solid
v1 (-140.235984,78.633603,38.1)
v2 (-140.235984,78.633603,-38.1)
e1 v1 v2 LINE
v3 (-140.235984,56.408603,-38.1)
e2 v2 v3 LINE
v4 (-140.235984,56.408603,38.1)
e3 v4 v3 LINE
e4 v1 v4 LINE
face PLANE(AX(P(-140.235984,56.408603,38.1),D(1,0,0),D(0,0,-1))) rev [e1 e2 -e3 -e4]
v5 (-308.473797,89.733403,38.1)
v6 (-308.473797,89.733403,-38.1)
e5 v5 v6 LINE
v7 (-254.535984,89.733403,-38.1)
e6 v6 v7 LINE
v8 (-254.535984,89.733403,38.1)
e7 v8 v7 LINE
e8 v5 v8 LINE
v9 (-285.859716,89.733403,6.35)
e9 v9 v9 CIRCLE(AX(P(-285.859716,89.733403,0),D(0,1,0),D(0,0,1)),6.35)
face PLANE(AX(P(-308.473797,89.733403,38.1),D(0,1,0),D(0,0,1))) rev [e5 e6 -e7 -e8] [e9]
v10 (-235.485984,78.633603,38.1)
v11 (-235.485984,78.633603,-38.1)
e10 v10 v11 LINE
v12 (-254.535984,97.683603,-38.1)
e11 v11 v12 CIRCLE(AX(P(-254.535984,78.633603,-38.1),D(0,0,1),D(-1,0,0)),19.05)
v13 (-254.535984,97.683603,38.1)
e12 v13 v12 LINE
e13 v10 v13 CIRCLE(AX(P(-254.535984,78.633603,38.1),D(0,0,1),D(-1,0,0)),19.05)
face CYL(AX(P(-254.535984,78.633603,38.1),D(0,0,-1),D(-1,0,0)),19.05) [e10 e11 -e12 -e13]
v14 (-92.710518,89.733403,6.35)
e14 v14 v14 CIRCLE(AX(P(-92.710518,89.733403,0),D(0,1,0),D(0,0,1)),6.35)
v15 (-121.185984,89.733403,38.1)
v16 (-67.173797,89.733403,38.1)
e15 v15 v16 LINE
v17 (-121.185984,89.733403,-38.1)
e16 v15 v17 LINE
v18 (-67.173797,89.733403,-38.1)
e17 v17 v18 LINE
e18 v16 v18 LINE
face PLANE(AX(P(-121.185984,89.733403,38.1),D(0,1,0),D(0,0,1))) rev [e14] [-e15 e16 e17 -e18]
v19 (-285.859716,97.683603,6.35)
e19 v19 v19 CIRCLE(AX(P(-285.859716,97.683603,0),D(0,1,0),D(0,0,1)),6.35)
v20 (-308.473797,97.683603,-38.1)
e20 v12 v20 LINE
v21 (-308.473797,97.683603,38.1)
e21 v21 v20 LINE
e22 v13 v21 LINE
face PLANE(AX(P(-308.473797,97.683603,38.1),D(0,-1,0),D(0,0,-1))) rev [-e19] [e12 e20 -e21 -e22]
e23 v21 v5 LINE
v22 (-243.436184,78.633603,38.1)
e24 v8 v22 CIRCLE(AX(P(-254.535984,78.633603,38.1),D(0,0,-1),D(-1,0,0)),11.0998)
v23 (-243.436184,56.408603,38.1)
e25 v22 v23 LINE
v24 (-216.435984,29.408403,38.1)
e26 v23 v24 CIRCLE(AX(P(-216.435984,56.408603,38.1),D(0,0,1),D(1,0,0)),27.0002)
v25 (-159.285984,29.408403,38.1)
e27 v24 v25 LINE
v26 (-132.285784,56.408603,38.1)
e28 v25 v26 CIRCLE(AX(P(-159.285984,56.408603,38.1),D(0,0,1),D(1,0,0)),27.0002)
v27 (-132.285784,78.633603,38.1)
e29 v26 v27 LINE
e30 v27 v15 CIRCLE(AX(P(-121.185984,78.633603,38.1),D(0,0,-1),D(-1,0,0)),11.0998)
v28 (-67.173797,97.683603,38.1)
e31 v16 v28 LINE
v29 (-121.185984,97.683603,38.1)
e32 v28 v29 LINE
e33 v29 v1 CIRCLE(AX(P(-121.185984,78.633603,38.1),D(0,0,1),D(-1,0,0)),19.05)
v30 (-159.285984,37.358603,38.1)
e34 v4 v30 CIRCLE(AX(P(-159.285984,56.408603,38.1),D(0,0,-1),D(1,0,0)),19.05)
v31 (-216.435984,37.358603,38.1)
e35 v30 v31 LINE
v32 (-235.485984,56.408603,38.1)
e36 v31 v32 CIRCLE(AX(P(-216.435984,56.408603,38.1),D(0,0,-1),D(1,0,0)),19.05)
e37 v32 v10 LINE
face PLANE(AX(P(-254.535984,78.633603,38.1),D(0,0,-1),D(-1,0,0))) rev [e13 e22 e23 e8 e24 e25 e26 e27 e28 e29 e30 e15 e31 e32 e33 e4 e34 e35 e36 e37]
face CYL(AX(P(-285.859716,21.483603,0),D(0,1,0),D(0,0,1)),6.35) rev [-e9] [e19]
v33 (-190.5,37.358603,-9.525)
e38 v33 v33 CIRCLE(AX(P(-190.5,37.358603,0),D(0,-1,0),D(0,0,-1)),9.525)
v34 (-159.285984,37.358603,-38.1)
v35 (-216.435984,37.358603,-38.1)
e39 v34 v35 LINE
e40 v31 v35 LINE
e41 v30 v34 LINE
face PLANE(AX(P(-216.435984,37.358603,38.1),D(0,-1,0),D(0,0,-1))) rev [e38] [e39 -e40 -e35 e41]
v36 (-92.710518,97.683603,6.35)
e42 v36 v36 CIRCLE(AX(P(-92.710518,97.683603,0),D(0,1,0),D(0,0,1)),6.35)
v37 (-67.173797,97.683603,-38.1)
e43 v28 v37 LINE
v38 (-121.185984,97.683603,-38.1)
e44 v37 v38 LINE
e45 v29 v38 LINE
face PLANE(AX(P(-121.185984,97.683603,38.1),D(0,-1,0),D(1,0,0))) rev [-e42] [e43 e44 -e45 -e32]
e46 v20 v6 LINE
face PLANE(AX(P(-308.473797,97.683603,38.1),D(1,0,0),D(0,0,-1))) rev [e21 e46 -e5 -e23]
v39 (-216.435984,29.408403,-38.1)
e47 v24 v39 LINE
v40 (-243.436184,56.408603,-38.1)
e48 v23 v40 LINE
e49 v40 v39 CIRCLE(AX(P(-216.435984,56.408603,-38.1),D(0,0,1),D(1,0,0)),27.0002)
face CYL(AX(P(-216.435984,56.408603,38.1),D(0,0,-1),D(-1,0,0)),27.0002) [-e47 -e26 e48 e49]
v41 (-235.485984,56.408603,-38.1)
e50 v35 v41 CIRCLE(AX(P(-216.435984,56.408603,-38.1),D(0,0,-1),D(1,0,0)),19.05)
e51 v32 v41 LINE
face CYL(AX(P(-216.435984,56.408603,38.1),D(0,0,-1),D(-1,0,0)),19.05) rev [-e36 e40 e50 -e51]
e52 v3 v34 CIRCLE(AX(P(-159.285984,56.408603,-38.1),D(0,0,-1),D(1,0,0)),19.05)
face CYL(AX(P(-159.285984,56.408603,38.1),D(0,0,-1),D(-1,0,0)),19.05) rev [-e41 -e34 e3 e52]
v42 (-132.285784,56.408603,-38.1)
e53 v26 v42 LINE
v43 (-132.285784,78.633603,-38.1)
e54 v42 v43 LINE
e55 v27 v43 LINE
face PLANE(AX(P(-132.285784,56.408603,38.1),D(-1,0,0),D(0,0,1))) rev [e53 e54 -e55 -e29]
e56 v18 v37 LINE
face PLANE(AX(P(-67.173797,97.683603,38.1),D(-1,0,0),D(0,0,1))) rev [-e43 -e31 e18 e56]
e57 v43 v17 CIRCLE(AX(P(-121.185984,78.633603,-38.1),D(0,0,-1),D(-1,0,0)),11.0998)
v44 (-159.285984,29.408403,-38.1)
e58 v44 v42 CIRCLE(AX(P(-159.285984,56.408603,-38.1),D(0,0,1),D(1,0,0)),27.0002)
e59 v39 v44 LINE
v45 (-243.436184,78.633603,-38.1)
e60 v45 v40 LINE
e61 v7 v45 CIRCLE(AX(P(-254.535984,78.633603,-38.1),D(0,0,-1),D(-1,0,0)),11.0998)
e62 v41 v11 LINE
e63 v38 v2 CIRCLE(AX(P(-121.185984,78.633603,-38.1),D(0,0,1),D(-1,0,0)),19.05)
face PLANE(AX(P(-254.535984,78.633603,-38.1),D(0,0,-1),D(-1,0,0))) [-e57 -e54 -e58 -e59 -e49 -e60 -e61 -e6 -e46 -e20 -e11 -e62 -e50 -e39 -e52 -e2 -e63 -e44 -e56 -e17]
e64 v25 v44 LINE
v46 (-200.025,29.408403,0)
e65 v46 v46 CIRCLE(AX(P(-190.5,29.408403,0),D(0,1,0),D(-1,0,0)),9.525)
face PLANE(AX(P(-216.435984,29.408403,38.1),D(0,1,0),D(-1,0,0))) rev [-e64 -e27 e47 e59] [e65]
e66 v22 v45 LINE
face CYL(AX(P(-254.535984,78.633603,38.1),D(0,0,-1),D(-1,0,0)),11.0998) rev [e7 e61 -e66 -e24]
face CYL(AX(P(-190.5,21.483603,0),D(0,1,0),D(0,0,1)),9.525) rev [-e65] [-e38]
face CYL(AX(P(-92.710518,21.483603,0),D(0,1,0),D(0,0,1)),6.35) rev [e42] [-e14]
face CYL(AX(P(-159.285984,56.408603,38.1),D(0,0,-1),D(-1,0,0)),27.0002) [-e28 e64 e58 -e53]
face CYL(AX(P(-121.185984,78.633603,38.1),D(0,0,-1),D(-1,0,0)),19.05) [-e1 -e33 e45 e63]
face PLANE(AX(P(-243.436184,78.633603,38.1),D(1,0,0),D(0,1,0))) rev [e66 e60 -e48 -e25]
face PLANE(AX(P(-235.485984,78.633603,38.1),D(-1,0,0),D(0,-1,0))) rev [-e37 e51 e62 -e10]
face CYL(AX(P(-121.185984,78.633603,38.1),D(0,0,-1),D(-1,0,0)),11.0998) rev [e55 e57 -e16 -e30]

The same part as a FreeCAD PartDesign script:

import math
import FreeCAD as App
import Part
import Sketcher

V = App.Vector
Q = App.Units.Quantity

doc = App.newDocument("Part")
body = doc.addObject("PartDesign::Body", "Body")

# Sketch on XY plane
sketch1 = body.newObject("Sketcher::SketchObject", "Sketch")
sketch1.AttachmentSupport = (doc.getObject("XY_Plane"), [""])
sketch1.MapMode = "FlatFace"
sketch1.addGeometry(Part.LineSegment(V(-255, 98, 0), V(-308, 98, 0)), False)
sketch1.addGeometry(Part.LineSegment(V(-308, 98, 0), V(-308, 90, 0)), False)
sketch1.addGeometry(Part.LineSegment(V(-308, 90, 0), V(-255, 90, 0)), False)
sketch1.addGeometry(Part.ArcOfCircle(Part.Circle(V(-255, 79, 0), V(0, 0, 1), 11), math.radians(0), math.radians(90)), False)
sketch1.addGeometry(Part.LineSegment(V(-243, 79, 0), V(-243, 56, 0)), False)
sketch1.addGeometry(Part.ArcOfCircle(Part.Circle(V(-216, 56, 0), V(0, 0, 1), 27), math.radians(-180), math.radians(-90)), False)
sketch1.addGeometry(Part.LineSegment(V(-216, 29, 0), V(-159, 29, 0)), False)
sketch1.addGeometry(Part.ArcOfCircle(Part.Circle(V(-159, 56, 0), V(0, 0, 1), 27), math.radians(-90), math.radians(0)), False)
sketch1.addGeometry(Part.LineSegment(V(-132, 56, 0), V(-132, 79, 0)), False)
sketch1.addGeometry(Part.ArcOfCircle(Part.Circle(V(-121, 79, 0), V(0, 0, 1), 11), math.radians(90), math.radians(180)), False)
sketch1.addGeometry(Part.LineSegment(V(-121, 90, 0), V(-67, 90, 0)), False)
sketch1.addGeometry(Part.LineSegment(V(-67, 90, 0), V(-67, 98, 0)), False)
sketch1.addGeometry(Part.LineSegment(V(-67, 98, 0), V(-121, 98, 0)), False)
sketch1.addGeometry(Part.ArcOfCircle(Part.Circle(V(-121, 79, 0), V(0, 0, 1), 19), math.radians(90), math.radians(180)), False)
sketch1.addGeometry(Part.LineSegment(V(-140, 79, 0), V(-140, 56, 0)), False)
sketch1.addGeometry(Part.ArcOfCircle(Part.Circle(V(-159, 56, 0), V(0, 0, 1), 19), math.radians(-90), math.radians(0)), False)
sketch1.addGeometry(Part.LineSegment(V(-159, 37, 0), V(-216, 37, 0)), False)
sketch1.addGeometry(Part.ArcOfCircle(Part.Circle(V(-216, 56, 0), V(0, 0, 1), 19), math.radians(-180), math.radians(-90)), False)
sketch1.addGeometry(Part.LineSegment(V(-235, 56, 0), V(-235, 79, 0)), False)
sketch1.addGeometry(Part.ArcOfCircle(Part.Circle(V(-255, 79, 0), V(0, 0, 1), 19), math.radians(0), math.radians(90)), False)
sketch1.addConstraint(Sketcher.Constraint("Coincident", 0, 2, 1, 1))
sketch1.addConstraint(Sketcher.Constraint("Coincident", 1, 2, 2, 1))
sketch1.addConstraint(Sketcher.Constraint("Tangent", 2, 2, 3, 2))
sketch1.addConstraint(Sketcher.Constraint("Tangent", 3, 1, 4, 1))
sketch1.addConstraint(Sketcher.Constraint("Tangent", 4, 2, 5, 1))
sketch1.addConstraint(Sketcher.Constraint("Tangent", 5, 2, 6, 1))
sketch1.addConstraint(Sketcher.Constraint("Tangent", 6, 2, 7, 1))
sketch1.addConstraint(Sketcher.Constraint("Tangent", 7, 2, 8, 1))
sketch1.addConstraint(Sketcher.Constraint("Tangent", 8, 2, 9, 2))
sketch1.addConstraint(Sketcher.Constraint("Tangent", 9, 1, 10, 1))
sketch1.addConstraint(Sketcher.Constraint("Coincident", 10, 2, 11, 1))
sketch1.addConstraint(Sketcher.Constraint("Coincident", 11, 2, 12, 1))
sketch1.addConstraint(Sketcher.Constraint("Tangent", 12, 2, 13, 1))
sketch1.addConstraint(Sketcher.Constraint("Tangent", 13, 2, 14, 1))
sketch1.addConstraint(Sketcher.Constraint("Tangent", 14, 2, 15, 2))
sketch1.addConstraint(Sketcher.Constraint("Tangent", 15, 1, 16, 1))
sketch1.addConstraint(Sketcher.Constraint("Tangent", 16, 2, 17, 2))
sketch1.addConstraint(Sketcher.Constraint("Tangent", 17, 1, 18, 1))
sketch1.addConstraint(Sketcher.Constraint("Tangent", 18, 2, 19, 1))
sketch1.addConstraint(Sketcher.Constraint("Tangent", 19, 2, 0, 1))
sketch1.addConstraint(Sketcher.Constraint("Horizontal", 0))
sketch1.addConstraint(Sketcher.Constraint("Vertical", 1))
sketch1.addConstraint(Sketcher.Constraint("Horizontal", 2))
sketch1.addConstraint(Sketcher.Constraint("Vertical", 4))
sketch1.addConstraint(Sketcher.Constraint("Horizontal", 6))
sketch1.addConstraint(Sketcher.Constraint("Vertical", 8))
sketch1.addConstraint(Sketcher.Constraint("Horizontal", 10))
sketch1.addConstraint(Sketcher.Constraint("Vertical", 11))
sketch1.addConstraint(Sketcher.Constraint("Horizontal", 12))
sketch1.addConstraint(Sketcher.Constraint("Vertical", 14))
sketch1.addConstraint(Sketcher.Constraint("Horizontal", 16))
sketch1.addConstraint(Sketcher.Constraint("Vertical", 18))
sketch1.addConstraint(Sketcher.Constraint("Coincident", 13, 3, 9, 3))
sketch1.addConstraint(Sketcher.Constraint("Coincident", 15, 3, 7, 3))
sketch1.addConstraint(Sketcher.Constraint("Coincident", 17, 3, 5, 3))
sketch1.addConstraint(Sketcher.Constraint("Coincident", 19, 3, 3, 3))
sketch1.addConstraint(Sketcher.Constraint("Equal", 5, 7))
sketch1.addConstraint(Sketcher.Constraint("Equal", 3, 9))
sketch1.addConstraint(Sketcher.Constraint("Equal", 13, 15))
sketch1.addConstraint(Sketcher.Constraint("Horizontal", 3, 3, 9, 3))
sketch1.addConstraint(Sketcher.Constraint("Radius", 13, Q("0.75 in")))
sketch1.addConstraint(Sketcher.Constraint("Radius", 3, Q("0.437 in")))
sketch1.addConstraint(Sketcher.Constraint("DistanceX", 6, 1, 6, 2, Q("2.25 in")))
sketch1.addConstraint(Sketcher.Constraint("DistanceY", 4, 2, 4, 1, Q("0.875 in")))
sketch1.addConstraint(Sketcher.Constraint("DistanceX", 0, 2, 0, 1, Q("53.937813 mm")))
sketch1.addConstraint(Sketcher.Constraint("DistanceX", 10, 1, 10, 2, Q("54.012187 mm")))
sketch1.addConstraint(Sketcher.Constraint("DistanceX", 3, 3, -1, 1, Q("254.535984 mm")))
sketch1.addConstraint(Sketcher.Constraint("DistanceY", -1, 1, 3, 3, Q("78.633603 mm")))
pad1 = body.newObject("PartDesign::Pad", "Pad")
pad1.Profile = sketch1
pad1.Length = Q("3 in")
pad1.Midplane = True

# Sketch on XZ plane
sketch2 = body.newObject("Sketcher::SketchObject", "Sketch001")
sketch2.AttachmentSupport = (doc.getObject("XZ_Plane"), [""])
sketch2.MapMode = "FlatFace"
sketch2.AttachmentOffset = App.Placement(V(0, 0, -97.683603), App.Rotation())
sketch2.addGeometry(Part.Circle(V(-190, 0, 0), V(0, 0, 1), 10), False)
sketch2.addGeometry(Part.Circle(V(-286, 0, 0), V(0, 0, 1), 6), False)
sketch2.addGeometry(Part.Circle(V(-93, 0, 0), V(0, 0, 1), 6), False)
sketch2.addConstraint(Sketcher.Constraint("Equal", 1, 2))
sketch2.addConstraint(Sketcher.Constraint("PointOnObject", 0, 3, -1))
sketch2.addConstraint(Sketcher.Constraint("PointOnObject", 1, 3, -1))
sketch2.addConstraint(Sketcher.Constraint("PointOnObject", 2, 3, -1))
sketch2.addConstraint(Sketcher.Constraint("Diameter", 1, Q("0.5 in")))
sketch2.addConstraint(Sketcher.Constraint("Diameter", 0, Q("0.75 in")))
sketch2.addConstraint(Sketcher.Constraint("DistanceX", 0, 3, -1, 1, Q("7.5 in")))
sketch2.addConstraint(Sketcher.Constraint("DistanceX", 1, 3, -1, 1, Q("285.859716 mm")))
sketch2.addConstraint(Sketcher.Constraint("DistanceX", 2, 3, -1, 1, Q("92.710518 mm")))
pocket1 = body.newObject("PartDesign::Pocket", "Pocket")
pocket1.Profile = sketch2
pocket1.Length = Q("3 in")
pocket1.Reversed = True

doc.recompute()
